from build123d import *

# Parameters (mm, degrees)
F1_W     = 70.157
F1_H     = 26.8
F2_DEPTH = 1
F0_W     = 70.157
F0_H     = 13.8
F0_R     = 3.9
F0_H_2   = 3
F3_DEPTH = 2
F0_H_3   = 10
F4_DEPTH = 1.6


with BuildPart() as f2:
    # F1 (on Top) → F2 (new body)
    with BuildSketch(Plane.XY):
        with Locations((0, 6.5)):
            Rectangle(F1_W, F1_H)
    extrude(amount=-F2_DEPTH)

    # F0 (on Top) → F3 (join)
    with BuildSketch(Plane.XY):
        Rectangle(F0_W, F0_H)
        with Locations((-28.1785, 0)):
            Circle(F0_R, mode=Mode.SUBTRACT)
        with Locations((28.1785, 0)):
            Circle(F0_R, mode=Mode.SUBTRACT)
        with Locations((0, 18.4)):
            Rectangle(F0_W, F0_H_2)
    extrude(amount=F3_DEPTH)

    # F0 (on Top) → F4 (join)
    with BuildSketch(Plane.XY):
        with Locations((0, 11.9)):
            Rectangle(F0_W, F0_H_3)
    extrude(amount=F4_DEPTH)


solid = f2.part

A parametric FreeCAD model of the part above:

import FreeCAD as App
import Part
import Sketcher

doc = App.newDocument("Part")
body = doc.addObject("PartDesign::Body", "Body")

# Sketch on XY plane
sketch1 = body.newObject("Sketcher::SketchObject", "Sketch")
sketch1.AttachmentSupport = (doc.getObject("XY_Plane"), [""])
sketch1.MapMode = "FlatFace"
sketch1.addGeometry([
    Part.LineSegment(App.Vector(-35, 20, 0), App.Vector(-35, -7, 0)),
    Part.LineSegment(App.Vector(-35, -7, 0), App.Vector(35, -7, 0)),
    Part.LineSegment(App.Vector(35, -7, 0), App.Vector(35, 20, 0)),
    Part.LineSegment(App.Vector(35, 20, 0), App.Vector(-35, 20, 0)),
], False)
sketch1.addConstraint([
    Sketcher.Constraint("Coincident", 0, 2, 1, 1),
    Sketcher.Constraint("Coincident", 1, 2, 2, 1),
    Sketcher.Constraint("Coincident", 2, 2, 3, 1),
    Sketcher.Constraint("Coincident", 3, 2, 0, 1),
    Sketcher.Constraint("Vertical", 0),
    Sketcher.Constraint("Horizontal", 1),
    Sketcher.Constraint("Vertical", 2),
    Sketcher.Constraint("Horizontal", 3),
    Sketcher.Constraint("DistanceY", 0, 2, 0, 1, 26.8),
    Sketcher.Constraint("DistanceY", 0, 2, -1, 1, 6.9),
    Sketcher.Constraint("DistanceX", 1, 1, 1, 2, 70.157),
    Sketcher.Constraint("DistanceX", 0, 2, -1, 1, 35.0785),
])
pad1 = body.newObject("PartDesign::Pad", "Pad")
pad1.Profile = sketch1
pad1.Length = 1
pad1.Reversed = True

# Sketch on XY plane
sketch2 = body.newObject("Sketcher::SketchObject", "Sketch001")
sketch2.AttachmentSupport = (doc.getObject("XY_Plane"), [""])
sketch2.MapMode = "FlatFace"
sketch2.addGeometry([
    Part.LineSegment(App.Vector(-35.1, 6.9, 0), App.Vector(-35.1, -6.9, 0)),  # 0
    Part.LineSegment(App.Vector(-35.1, -6.9, 0), App.Vector(35.1, -6.9, 0)),  # 1
    Part.LineSegment(App.Vector(35.1, -6.9, 0), App.Vector(35.1, 6.9, 0)),  # 2
    Part.LineSegment(App.Vector(35.1, 6.9, 0), App.Vector(-35.1, 6.9, 0)),  # 3
    Part.Circle(App.Vector(-28.2, 0, 0), App.Vector(0, 0, 1), 3.9),  # 4
    Part.Circle(App.Vector(28.2, 0, 0), App.Vector(0, 0, 1), 3.9),  # 5
    Part.LineSegment(App.Vector(-35.1, 19.9, 0), App.Vector(-35.1, 16.9, 0)),  # 6
    Part.LineSegment(App.Vector(-35.1, 16.9, 0), App.Vector(35.1, 16.9, 0)),  # 7
    Part.LineSegment(App.Vector(35.1, 16.9, 0), App.Vector(35.1, 19.9, 0)),  # 8
    Part.LineSegment(App.Vector(35.1, 19.9, 0), App.Vector(-35.1, 19.9, 0)),  # 9
], False)
sketch2.addConstraint([
    Sketcher.Constraint("Coincident", 0, 2, 1, 1),
    Sketcher.Constraint("Coincident", 1, 2, 2, 1),
    Sketcher.Constraint("Coincident", 2, 2, 3, 1),
    Sketcher.Constraint("Coincident", 3, 2, 0, 1),
    Sketcher.Constraint("Coincident", 6, 2, 7, 1),
    Sketcher.Constraint("Coincident", 7, 2, 8, 1),
    Sketcher.Constraint("Coincident", 8, 2, 9, 1),
    Sketcher.Constraint("Coincident", 9, 2, 6, 1),
    Sketcher.Constraint("Vertical", 0),
    Sketcher.Constraint("Horizontal", 1),
    Sketcher.Constraint("Vertical", 2),
    Sketcher.Constraint("Horizontal", 3),
    Sketcher.Constraint("Vertical", 6),
    Sketcher.Constraint("Horizontal", 7),
    Sketcher.Constraint("Vertical", 8),
    Sketcher.Constraint("Horizontal", 9),
    Sketcher.Constraint("Equal", 4, 5),
    Sketcher.Constraint("Symmetric", 4, 3, 5, 3, -1, 1),
    Sketcher.Constraint("Symmetric", 0, 2, 2, 2, -1, 1),
    Sketcher.Constraint("PointOnObject", 4, 3, -1),
    Sketcher.Constraint("Vertical", 3, 2, 6, 2),
    Sketcher.Constraint("Vertical", 2, 2, 7, 2),
    Sketcher.Constraint("Diameter", 4, 7.8),
    Sketcher.Constraint("DistanceY", 6, 2, 6, 1, 3.0),
    Sketcher.Constraint("DistanceY", 0, 2, 0, 1, 13.8),
    Sketcher.Constraint("DistanceY", 3, 2, 6, 2, 10.0),
    Sketcher.Constraint("DistanceX", 0, 2, 4, 3, 6.9),
    Sketcher.Constraint("DistanceX", 1, 1, 1, 2, 70.157),
])
pad2 = body.newObject("PartDesign::Pad", "Pad001")
pad2.Profile = sketch2
pad2.Length = 2

# Sketch on XY plane
sketch3 = body.newObject("Sketcher::SketchObject", "Sketch002")
sketch3.AttachmentSupport = (doc.getObject("XY_Plane"), [""])
sketch3.MapMode = "FlatFace"
sketch3.addGeometry([
    Part.LineSegment(App.Vector(-35, 17, 0), App.Vector(-35, 7, 0)),
    Part.LineSegment(App.Vector(-35, 7, 0), App.Vector(35, 7, 0)),
    Part.LineSegment(App.Vector(35, 7, 0), App.Vector(35, 17, 0)),
    Part.LineSegment(App.Vector(35, 17, 0), App.Vector(-35, 17, 0)),
], False)
sketch3.addConstraint([
    Sketcher.Constraint("Coincident", 0, 2, 1, 1),
    Sketcher.Constraint("Coincident", 1, 2, 2, 1),
    Sketcher.Constraint("Coincident", 2, 2, 3, 1),
    Sketcher.Constraint("Coincident", 3, 2, 0, 1),
    Sketcher.Constraint("Vertical", 0),
    Sketcher.Constraint("Horizontal", 1),
    Sketcher.Constraint("Vertical", 2),
    Sketcher.Constraint("Horizontal", 3),
    Sketcher.Constraint("DistanceY", 0, 2, 0, 1, 10.0),
    Sketcher.Constraint("DistanceY", -1, 1, 0, 2, 6.9),
    Sketcher.Constraint("DistanceX", 1, 1, 1, 2, 70.157),
    Sketcher.Constraint("DistanceX", 0, 2, -1, 1, 35.0785),
])
pad3 = body.newObject("PartDesign::Pad", "Pad002")
pad3.Profile = sketch3
pad3.Length = 1.6

doc.recompute()
